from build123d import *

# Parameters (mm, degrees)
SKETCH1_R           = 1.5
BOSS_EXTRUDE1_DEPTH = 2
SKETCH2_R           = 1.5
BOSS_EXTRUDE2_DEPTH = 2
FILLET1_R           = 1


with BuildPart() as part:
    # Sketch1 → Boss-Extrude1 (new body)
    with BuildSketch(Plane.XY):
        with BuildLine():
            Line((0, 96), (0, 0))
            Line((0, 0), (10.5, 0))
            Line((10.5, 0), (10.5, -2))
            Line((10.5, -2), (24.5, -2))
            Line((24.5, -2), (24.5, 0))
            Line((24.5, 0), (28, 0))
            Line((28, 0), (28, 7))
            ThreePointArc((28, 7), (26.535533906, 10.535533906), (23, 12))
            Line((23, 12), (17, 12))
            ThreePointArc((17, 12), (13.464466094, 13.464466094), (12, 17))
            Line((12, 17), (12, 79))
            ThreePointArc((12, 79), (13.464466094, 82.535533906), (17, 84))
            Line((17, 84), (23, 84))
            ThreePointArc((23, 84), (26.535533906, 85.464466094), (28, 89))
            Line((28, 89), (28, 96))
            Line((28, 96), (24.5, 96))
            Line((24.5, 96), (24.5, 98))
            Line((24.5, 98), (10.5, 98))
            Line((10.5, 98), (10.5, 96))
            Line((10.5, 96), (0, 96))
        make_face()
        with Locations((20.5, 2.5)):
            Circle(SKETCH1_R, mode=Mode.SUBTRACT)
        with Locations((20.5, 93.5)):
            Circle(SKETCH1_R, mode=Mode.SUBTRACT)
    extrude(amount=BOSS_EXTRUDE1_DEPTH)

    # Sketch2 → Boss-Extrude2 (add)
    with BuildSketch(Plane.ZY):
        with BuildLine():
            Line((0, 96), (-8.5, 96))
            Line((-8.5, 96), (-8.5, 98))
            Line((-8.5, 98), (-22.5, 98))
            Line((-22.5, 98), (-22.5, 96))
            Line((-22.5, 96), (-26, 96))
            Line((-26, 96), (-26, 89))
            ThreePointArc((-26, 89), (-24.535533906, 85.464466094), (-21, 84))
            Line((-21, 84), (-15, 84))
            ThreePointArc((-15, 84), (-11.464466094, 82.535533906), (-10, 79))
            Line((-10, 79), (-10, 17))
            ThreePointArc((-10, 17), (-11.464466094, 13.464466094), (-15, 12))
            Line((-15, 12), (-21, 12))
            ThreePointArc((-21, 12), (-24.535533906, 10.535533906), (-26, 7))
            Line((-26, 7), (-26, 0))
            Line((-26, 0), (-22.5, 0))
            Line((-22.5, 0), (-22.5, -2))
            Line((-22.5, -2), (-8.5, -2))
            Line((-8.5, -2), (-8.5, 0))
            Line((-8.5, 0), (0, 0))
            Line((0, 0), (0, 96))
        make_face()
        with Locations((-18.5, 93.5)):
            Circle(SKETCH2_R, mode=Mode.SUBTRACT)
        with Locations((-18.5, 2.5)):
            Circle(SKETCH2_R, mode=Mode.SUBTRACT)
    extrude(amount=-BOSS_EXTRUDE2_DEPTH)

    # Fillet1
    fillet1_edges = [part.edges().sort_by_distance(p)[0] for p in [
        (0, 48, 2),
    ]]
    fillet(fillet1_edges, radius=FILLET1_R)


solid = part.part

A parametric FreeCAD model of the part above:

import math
import FreeCAD as App
import Part
import Sketcher

V = App.Vector
Q = App.Units.Quantity


def edges_at(feature, points):
    """Names of the edges that pass closest to the given points."""
    edges = feature.Shape.Edges
    near = lambda p: min(range(len(edges)), key=lambda i: edges[i].distToShape(Part.Vertex(*p))[0])
    return sorted({f"Edge{near(p) + 1}" for p in points})

doc = App.newDocument("Part")
body = doc.addObject("PartDesign::Body", "Body")

# Sketch on XY plane
sketch1 = body.newObject("Sketcher::SketchObject", "Sketch")
sketch1.AttachmentSupport = (doc.getObject("XY_Plane"), [""])
sketch1.MapMode = "FlatFace"
sketch1.addGeometry([
    Part.LineSegment(V(0, 96, 0), V(0, 0, 0)),  # 0
    Part.LineSegment(V(0, 0, 0), V(10.5, 0, 0)),  # 1
    Part.LineSegment(V(10.5, 0, 0), V(10.5, -2, 0)),  # 2
    Part.LineSegment(V(10.5, -2, 0), V(24.5, -2, 0)),  # 3
    Part.LineSegment(V(24.5, -2, 0), V(24.5, 0, 0)),  # 4
    Part.LineSegment(V(24.5, 0, 0), V(28, 0, 0)),  # 5
    Part.LineSegment(V(28, 0, 0), V(28, 7, 0)),  # 6
    Part.ArcOfCircle(Part.Circle(V(23, 7, 0), V(0, 0, 1), 5), math.radians(0), math.radians(90)),  # 7
    Part.LineSegment(V(23, 12, 0), V(17, 12, 0)),  # 8
    Part.ArcOfCircle(Part.Circle(V(17, 17, 0), V(0, 0, 1), 5), math.radians(180), math.radians(270)),  # 9
    Part.LineSegment(V(12, 17, 0), V(12, 79, 0)),  # 10
    Part.ArcOfCircle(Part.Circle(V(17, 79, 0), V(0, 0, 1), 5), math.radians(90), math.radians(180)),  # 11
    Part.LineSegment(V(17, 84, 0), V(23, 84, 0)),  # 12
    Part.ArcOfCircle(Part.Circle(V(23, 89, 0), V(0, 0, 1), 5), math.radians(-90), math.radians(0)),  # 13
    Part.LineSegment(V(28, 89, 0), V(28, 96, 0)),  # 14
    Part.LineSegment(V(28, 96, 0), V(24.5, 96, 0)),  # 15
    Part.LineSegment(V(24.5, 96, 0), V(24.5, 98, 0)),  # 16
    Part.LineSegment(V(24.5, 98, 0), V(10.5, 98, 0)),  # 17
    Part.LineSegment(V(10.5, 98, 0), V(10.5, 96, 0)),  # 18
    Part.LineSegment(V(10.5, 96, 0), V(0, 96, 0)),  # 19
    Part.Circle(V(20.5, 2.5, 0), V(0, 0, 1), 1.5),  # 20
    Part.Circle(V(20.5, 93.5, 0), V(0, 0, 1), 1.5),  # 21
], False)
sketch1.addConstraint([
    Sketcher.Constraint("Coincident", 0, 2, 1, 1),
    Sketcher.Constraint("Coincident", 1, 2, 2, 1),
    Sketcher.Constraint("Coincident", 2, 2, 3, 1),
    Sketcher.Constraint("Coincident", 3, 2, 4, 1),
    Sketcher.Constraint("Coincident", 4, 2, 5, 1),
    Sketcher.Constraint("Coincident", 5, 2, 6, 1),
    Sketcher.Constraint("Tangent", 6, 2, 7, 1),
    Sketcher.Constraint("Tangent", 7, 2, 8, 1),
    Sketcher.Constraint("Tangent", 8, 2, 9, 2),
    Sketcher.Constraint("Tangent", 9, 1, 10, 1),
    Sketcher.Constraint("Tangent", 10, 2, 11, 2),
    Sketcher.Constraint("Tangent", 11, 1, 12, 1),
    Sketcher.Constraint("Tangent", 12, 2, 13, 1),
    Sketcher.Constraint("Tangent", 13, 2, 14, 1),
    Sketcher.Constraint("Coincident", 14, 2, 15, 1),
    Sketcher.Constraint("Coincident", 15, 2, 16, 1),
    Sketcher.Constraint("Coincident", 16, 2, 17, 1),
    Sketcher.Constraint("Coincident", 17, 2, 18, 1),
    Sketcher.Constraint("Coincident", 18, 2, 19, 1),
    Sketcher.Constraint("Coincident", 19, 2, 0, 1),
    Sketcher.Constraint("Vertical", 0),
    Sketcher.Constraint("Horizontal", 1),
    Sketcher.Constraint("Vertical", 2),
    Sketcher.Constraint("Horizontal", 3),
    Sketcher.Constraint("Vertical", 4),
    Sketcher.Constraint("Horizontal", 5),
    Sketcher.Constraint("Vertical", 6),
    Sketcher.Constraint("Horizontal", 8),
    Sketcher.Constraint("Vertical", 10),
    Sketcher.Constraint("Horizontal", 12),
    Sketcher.Constraint("Vertical", 14),
    Sketcher.Constraint("Horizontal", 15),
    Sketcher.Constraint("Vertical", 16),
    Sketcher.Constraint("Horizontal", 17),
    Sketcher.Constraint("Vertical", 18),
    Sketcher.Constraint("Horizontal", 19),
    Sketcher.Constraint("Coincident", 0, 2, -1, 1),
    Sketcher.Constraint("Equal", 7, 9),
    Sketcher.Constraint("Equal", 9, 11),
    Sketcher.Constraint("Equal", 11, 13),
    Sketcher.Constraint("Equal", 20, 21),
    Sketcher.Constraint("PointOnObject", 4, 2, -1),
    Sketcher.Constraint("Horizontal", 15, 2, 18, 2),
    Sketcher.Constraint("Vertical", 7, 3, 13, 3),
    Sketcher.Constraint("Vertical", 20, 3, 21, 3),
    Sketcher.Constraint("Vertical", 4, 2, 15, 2),
    Sketcher.Constraint("Vertical", 2, 2, 17, 2),
    Sketcher.Constraint("Equal", 6, 14),
    Sketcher.Constraint("Equal", 4, 16),
    Sketcher.Constraint("Diameter", 20, Q("3 mm")),
    Sketcher.Constraint("Radius", 7, Q("5 mm")),
    Sketcher.Constraint("DistanceX", 3, 1, 3, 2, Q("14 mm")),
    Sketcher.Constraint("DistanceX", 8, 2, 8, 1, Q("6 mm")),
    Sketcher.Constraint("DistanceY", 0, 2, 0, 1, Q("96 mm")),
    Sketcher.Constraint("DistanceY", 2, 2, 2, 1, Q("2 mm")),
    Sketcher.Constraint("DistanceY", 6, 1, 6, 2, Q("7 mm")),
    Sketcher.Constraint("DistanceX", 1, 1, 1, 2, Q("10.5 mm")),
    Sketcher.Constraint("DistanceX", 5, 1, 5, 2, Q("3.5 mm")),
    Sketcher.Constraint("DistanceY", 20, 3, 21, 3, Q("91 mm")),
    Sketcher.Constraint("DistanceX", 1, 2, 20, 3, Q("10 mm")),
    Sketcher.Constraint("DistanceY", -1, 1, 20, 3, Q("2.5 mm")),
])
pad1 = body.newObject("PartDesign::Pad", "Pad")
pad1.Profile = sketch1
pad1.Length = 2

# Sketch on YZ plane
sketch2 = body.newObject("Sketcher::SketchObject", "Sketch001")
sketch2.AttachmentSupport = (doc.getObject("YZ_Plane"), [""])
sketch2.MapMode = "FlatFace"
sketch2.addGeometry([
    Part.LineSegment(V(96, 0, 0), V(96, -8.5, 0)),  # 0
    Part.LineSegment(V(96, -8.5, 0), V(98, -8.5, 0)),  # 1
    Part.LineSegment(V(98, -8.5, 0), V(98, -22.5, 0)),  # 2
    Part.LineSegment(V(98, -22.5, 0), V(96, -22.5, 0)),  # 3
    Part.LineSegment(V(96, -22.5, 0), V(96, -26, 0)),  # 4
    Part.LineSegment(V(96, -26, 0), V(89, -26, 0)),  # 5
    Part.ArcOfCircle(Part.Circle(V(89, -21, 0), V(0, 0, 1), 5), math.radians(180), math.radians(270)),  # 6
    Part.LineSegment(V(84, -21, 0), V(84, -15, 0)),  # 7
    Part.ArcOfCircle(Part.Circle(V(79, -15, 0), V(0, 0, 1), 5), math.radians(0), math.radians(90)),  # 8
    Part.LineSegment(V(79, -10, 0), V(17, -10, 0)),  # 9
    Part.ArcOfCircle(Part.Circle(V(17, -15, 0), V(0, 0, 1), 5), math.radians(90), math.radians(180)),  # 10
    Part.LineSegment(V(12, -15, 0), V(12, -21, 0)),  # 11
    Part.ArcOfCircle(Part.Circle(V(7, -21, 0), V(0, 0, 1), 5), math.radians(-90), math.radians(0)),  # 12
    Part.LineSegment(V(7, -26, 0), V(0, -26, 0)),  # 13
    Part.LineSegment(V(0, -26, 0), V(0, -22.5, 0)),  # 14
    Part.LineSegment(V(0, -22.5, 0), V(-2, -22.5, 0)),  # 15
    Part.LineSegment(V(-2, -22.5, 0), V(-2, -8.5, 0)),  # 16
    Part.LineSegment(V(-2, -8.5, 0), V(0, -8.5, 0)),  # 17
    Part.LineSegment(V(0, -8.5, 0), V(0, 0, 0)),  # 18
    Part.LineSegment(V(0, 0, 0), V(96, 0, 0)),  # 19
    Part.Circle(V(2.5, -18.5, 0), V(0, 0, 1), 1.5),  # 20
    Part.Circle(V(93.5, -18.5, 0), V(0, 0, 1), 1.5),  # 21
], False)
sketch2.addConstraint([
    Sketcher.Constraint("Coincident", 0, 2, 1, 1),
    Sketcher.Constraint("Coincident", 1, 2, 2, 1),
    Sketcher.Constraint("Coincident", 2, 2, 3, 1),
    Sketcher.Constraint("Coincident", 3, 2, 4, 1),
    Sketcher.Constraint("Coincident", 4, 2, 5, 1),
    Sketcher.Constraint("Tangent", 5, 2, 6, 2),
    Sketcher.Constraint("Tangent", 6, 1, 7, 1),
    Sketcher.Constraint("Tangent", 7, 2, 8, 1),
    Sketcher.Constraint("Tangent", 8, 2, 9, 1),
    Sketcher.Constraint("Tangent", 9, 2, 10, 1),
    Sketcher.Constraint("Tangent", 10, 2, 11, 1),
    Sketcher.Constraint("Tangent", 11, 2, 12, 2),
    Sketcher.Constraint("Tangent", 12, 1, 13, 1),
    Sketcher.Constraint("Coincident", 13, 2, 14, 1),
    Sketcher.Constraint("Coincident", 14, 2, 15, 1),
    Sketcher.Constraint("Coincident", 15, 2, 16, 1),
    Sketcher.Constraint("Coincident", 16, 2, 17, 1),
    Sketcher.Constraint("Coincident", 17, 2, 18, 1),
    Sketcher.Constraint("Coincident", 18, 2, 19, 1),
    Sketcher.Constraint("Coincident", 19, 2, 0, 1),
    Sketcher.Constraint("Vertical", 0),
    Sketcher.Constraint("Horizontal", 1),
    Sketcher.Constraint("Vertical", 2),
    Sketcher.Constraint("Horizontal", 3),
    Sketcher.Constraint("Vertical", 4),
    Sketcher.Constraint("Horizontal", 5),
    Sketcher.Constraint("Vertical", 7),
    Sketcher.Constraint("Horizontal", 9),
    Sketcher.Constraint("Vertical", 11),
    Sketcher.Constraint("Horizontal", 13),
    Sketcher.Constraint("Vertical", 14),
    Sketcher.Constraint("Horizontal", 15),
    Sketcher.Constraint("Vertical", 16),
    Sketcher.Constraint("Horizontal", 17),
    Sketcher.Constraint("Vertical", 18),
    Sketcher.Constraint("Horizontal", 19),
    Sketcher.Constraint("Coincident", 18, 2, -1, 1),
    Sketcher.Constraint("Equal", 6, 8),
    Sketcher.Constraint("Equal", 8, 10),
    Sketcher.Constraint("Equal", 10, 12),
    Sketcher.Constraint("Equal", 20, 21),
    Sketcher.Constraint("PointOnObject", 13, 2, -2),
    Sketcher.Constraint("Horizontal", 6, 3, 12, 3),
    Sketcher.Constraint("Horizontal", 20, 3, 21, 3),
    Sketcher.Constraint("Horizontal", 3, 2, 14, 2),
    Sketcher.Constraint("Horizontal", 1, 2, 16, 2),
    Sketcher.Constraint("Vertical", 0, 2, 3, 2),
    Sketcher.Constraint("Equal", 5, 13),
    Sketcher.Constraint("Equal", 3, 15),
    Sketcher.Constraint("Diameter", 20, Q("3 mm")),
    Sketcher.Constraint("Radius", 6, Q("5 mm")),
    Sketcher.Constraint("DistanceX", 1, 1, 1, 2, Q("2 mm")),
    Sketcher.Constraint("DistanceX", 5, 2, 5, 1, Q("7 mm")),
    Sketcher.Constraint("DistanceX", 9, 2, 9, 1, Q("62 mm")),
    Sketcher.Constraint("DistanceY", 2, 2, 2, 1, Q("14 mm")),
    Sketcher.Constraint("DistanceY", 7, 1, 7, 2, Q("6 mm")),
    Sketcher.Constraint("DistanceY", 0, 2, 0, 1, Q("8.5 mm")),
    Sketcher.Constraint("DistanceY", 4, 2, 4, 1, Q("3.5 mm")),
    Sketcher.Constraint("DistanceX", 20, 3, 21, 3, Q("91 mm")),
    Sketcher.Constraint("DistanceY", 21, 3, 0, 2, Q("10 mm")),
    Sketcher.Constraint("DistanceX", -1, 1, 20, 3, Q("2.5 mm")),
])
pad2 = body.newObject("PartDesign::Pad", "Pad001")
pad2.Profile = sketch2
pad2.Length = 2
doc.recompute()

fillet = body.newObject("PartDesign::Fillet", "Fillet")
fillet.Base = (pad2, edges_at(pad2, [(0, 48, 2)]))
fillet.Radius = 1

doc.recompute()
